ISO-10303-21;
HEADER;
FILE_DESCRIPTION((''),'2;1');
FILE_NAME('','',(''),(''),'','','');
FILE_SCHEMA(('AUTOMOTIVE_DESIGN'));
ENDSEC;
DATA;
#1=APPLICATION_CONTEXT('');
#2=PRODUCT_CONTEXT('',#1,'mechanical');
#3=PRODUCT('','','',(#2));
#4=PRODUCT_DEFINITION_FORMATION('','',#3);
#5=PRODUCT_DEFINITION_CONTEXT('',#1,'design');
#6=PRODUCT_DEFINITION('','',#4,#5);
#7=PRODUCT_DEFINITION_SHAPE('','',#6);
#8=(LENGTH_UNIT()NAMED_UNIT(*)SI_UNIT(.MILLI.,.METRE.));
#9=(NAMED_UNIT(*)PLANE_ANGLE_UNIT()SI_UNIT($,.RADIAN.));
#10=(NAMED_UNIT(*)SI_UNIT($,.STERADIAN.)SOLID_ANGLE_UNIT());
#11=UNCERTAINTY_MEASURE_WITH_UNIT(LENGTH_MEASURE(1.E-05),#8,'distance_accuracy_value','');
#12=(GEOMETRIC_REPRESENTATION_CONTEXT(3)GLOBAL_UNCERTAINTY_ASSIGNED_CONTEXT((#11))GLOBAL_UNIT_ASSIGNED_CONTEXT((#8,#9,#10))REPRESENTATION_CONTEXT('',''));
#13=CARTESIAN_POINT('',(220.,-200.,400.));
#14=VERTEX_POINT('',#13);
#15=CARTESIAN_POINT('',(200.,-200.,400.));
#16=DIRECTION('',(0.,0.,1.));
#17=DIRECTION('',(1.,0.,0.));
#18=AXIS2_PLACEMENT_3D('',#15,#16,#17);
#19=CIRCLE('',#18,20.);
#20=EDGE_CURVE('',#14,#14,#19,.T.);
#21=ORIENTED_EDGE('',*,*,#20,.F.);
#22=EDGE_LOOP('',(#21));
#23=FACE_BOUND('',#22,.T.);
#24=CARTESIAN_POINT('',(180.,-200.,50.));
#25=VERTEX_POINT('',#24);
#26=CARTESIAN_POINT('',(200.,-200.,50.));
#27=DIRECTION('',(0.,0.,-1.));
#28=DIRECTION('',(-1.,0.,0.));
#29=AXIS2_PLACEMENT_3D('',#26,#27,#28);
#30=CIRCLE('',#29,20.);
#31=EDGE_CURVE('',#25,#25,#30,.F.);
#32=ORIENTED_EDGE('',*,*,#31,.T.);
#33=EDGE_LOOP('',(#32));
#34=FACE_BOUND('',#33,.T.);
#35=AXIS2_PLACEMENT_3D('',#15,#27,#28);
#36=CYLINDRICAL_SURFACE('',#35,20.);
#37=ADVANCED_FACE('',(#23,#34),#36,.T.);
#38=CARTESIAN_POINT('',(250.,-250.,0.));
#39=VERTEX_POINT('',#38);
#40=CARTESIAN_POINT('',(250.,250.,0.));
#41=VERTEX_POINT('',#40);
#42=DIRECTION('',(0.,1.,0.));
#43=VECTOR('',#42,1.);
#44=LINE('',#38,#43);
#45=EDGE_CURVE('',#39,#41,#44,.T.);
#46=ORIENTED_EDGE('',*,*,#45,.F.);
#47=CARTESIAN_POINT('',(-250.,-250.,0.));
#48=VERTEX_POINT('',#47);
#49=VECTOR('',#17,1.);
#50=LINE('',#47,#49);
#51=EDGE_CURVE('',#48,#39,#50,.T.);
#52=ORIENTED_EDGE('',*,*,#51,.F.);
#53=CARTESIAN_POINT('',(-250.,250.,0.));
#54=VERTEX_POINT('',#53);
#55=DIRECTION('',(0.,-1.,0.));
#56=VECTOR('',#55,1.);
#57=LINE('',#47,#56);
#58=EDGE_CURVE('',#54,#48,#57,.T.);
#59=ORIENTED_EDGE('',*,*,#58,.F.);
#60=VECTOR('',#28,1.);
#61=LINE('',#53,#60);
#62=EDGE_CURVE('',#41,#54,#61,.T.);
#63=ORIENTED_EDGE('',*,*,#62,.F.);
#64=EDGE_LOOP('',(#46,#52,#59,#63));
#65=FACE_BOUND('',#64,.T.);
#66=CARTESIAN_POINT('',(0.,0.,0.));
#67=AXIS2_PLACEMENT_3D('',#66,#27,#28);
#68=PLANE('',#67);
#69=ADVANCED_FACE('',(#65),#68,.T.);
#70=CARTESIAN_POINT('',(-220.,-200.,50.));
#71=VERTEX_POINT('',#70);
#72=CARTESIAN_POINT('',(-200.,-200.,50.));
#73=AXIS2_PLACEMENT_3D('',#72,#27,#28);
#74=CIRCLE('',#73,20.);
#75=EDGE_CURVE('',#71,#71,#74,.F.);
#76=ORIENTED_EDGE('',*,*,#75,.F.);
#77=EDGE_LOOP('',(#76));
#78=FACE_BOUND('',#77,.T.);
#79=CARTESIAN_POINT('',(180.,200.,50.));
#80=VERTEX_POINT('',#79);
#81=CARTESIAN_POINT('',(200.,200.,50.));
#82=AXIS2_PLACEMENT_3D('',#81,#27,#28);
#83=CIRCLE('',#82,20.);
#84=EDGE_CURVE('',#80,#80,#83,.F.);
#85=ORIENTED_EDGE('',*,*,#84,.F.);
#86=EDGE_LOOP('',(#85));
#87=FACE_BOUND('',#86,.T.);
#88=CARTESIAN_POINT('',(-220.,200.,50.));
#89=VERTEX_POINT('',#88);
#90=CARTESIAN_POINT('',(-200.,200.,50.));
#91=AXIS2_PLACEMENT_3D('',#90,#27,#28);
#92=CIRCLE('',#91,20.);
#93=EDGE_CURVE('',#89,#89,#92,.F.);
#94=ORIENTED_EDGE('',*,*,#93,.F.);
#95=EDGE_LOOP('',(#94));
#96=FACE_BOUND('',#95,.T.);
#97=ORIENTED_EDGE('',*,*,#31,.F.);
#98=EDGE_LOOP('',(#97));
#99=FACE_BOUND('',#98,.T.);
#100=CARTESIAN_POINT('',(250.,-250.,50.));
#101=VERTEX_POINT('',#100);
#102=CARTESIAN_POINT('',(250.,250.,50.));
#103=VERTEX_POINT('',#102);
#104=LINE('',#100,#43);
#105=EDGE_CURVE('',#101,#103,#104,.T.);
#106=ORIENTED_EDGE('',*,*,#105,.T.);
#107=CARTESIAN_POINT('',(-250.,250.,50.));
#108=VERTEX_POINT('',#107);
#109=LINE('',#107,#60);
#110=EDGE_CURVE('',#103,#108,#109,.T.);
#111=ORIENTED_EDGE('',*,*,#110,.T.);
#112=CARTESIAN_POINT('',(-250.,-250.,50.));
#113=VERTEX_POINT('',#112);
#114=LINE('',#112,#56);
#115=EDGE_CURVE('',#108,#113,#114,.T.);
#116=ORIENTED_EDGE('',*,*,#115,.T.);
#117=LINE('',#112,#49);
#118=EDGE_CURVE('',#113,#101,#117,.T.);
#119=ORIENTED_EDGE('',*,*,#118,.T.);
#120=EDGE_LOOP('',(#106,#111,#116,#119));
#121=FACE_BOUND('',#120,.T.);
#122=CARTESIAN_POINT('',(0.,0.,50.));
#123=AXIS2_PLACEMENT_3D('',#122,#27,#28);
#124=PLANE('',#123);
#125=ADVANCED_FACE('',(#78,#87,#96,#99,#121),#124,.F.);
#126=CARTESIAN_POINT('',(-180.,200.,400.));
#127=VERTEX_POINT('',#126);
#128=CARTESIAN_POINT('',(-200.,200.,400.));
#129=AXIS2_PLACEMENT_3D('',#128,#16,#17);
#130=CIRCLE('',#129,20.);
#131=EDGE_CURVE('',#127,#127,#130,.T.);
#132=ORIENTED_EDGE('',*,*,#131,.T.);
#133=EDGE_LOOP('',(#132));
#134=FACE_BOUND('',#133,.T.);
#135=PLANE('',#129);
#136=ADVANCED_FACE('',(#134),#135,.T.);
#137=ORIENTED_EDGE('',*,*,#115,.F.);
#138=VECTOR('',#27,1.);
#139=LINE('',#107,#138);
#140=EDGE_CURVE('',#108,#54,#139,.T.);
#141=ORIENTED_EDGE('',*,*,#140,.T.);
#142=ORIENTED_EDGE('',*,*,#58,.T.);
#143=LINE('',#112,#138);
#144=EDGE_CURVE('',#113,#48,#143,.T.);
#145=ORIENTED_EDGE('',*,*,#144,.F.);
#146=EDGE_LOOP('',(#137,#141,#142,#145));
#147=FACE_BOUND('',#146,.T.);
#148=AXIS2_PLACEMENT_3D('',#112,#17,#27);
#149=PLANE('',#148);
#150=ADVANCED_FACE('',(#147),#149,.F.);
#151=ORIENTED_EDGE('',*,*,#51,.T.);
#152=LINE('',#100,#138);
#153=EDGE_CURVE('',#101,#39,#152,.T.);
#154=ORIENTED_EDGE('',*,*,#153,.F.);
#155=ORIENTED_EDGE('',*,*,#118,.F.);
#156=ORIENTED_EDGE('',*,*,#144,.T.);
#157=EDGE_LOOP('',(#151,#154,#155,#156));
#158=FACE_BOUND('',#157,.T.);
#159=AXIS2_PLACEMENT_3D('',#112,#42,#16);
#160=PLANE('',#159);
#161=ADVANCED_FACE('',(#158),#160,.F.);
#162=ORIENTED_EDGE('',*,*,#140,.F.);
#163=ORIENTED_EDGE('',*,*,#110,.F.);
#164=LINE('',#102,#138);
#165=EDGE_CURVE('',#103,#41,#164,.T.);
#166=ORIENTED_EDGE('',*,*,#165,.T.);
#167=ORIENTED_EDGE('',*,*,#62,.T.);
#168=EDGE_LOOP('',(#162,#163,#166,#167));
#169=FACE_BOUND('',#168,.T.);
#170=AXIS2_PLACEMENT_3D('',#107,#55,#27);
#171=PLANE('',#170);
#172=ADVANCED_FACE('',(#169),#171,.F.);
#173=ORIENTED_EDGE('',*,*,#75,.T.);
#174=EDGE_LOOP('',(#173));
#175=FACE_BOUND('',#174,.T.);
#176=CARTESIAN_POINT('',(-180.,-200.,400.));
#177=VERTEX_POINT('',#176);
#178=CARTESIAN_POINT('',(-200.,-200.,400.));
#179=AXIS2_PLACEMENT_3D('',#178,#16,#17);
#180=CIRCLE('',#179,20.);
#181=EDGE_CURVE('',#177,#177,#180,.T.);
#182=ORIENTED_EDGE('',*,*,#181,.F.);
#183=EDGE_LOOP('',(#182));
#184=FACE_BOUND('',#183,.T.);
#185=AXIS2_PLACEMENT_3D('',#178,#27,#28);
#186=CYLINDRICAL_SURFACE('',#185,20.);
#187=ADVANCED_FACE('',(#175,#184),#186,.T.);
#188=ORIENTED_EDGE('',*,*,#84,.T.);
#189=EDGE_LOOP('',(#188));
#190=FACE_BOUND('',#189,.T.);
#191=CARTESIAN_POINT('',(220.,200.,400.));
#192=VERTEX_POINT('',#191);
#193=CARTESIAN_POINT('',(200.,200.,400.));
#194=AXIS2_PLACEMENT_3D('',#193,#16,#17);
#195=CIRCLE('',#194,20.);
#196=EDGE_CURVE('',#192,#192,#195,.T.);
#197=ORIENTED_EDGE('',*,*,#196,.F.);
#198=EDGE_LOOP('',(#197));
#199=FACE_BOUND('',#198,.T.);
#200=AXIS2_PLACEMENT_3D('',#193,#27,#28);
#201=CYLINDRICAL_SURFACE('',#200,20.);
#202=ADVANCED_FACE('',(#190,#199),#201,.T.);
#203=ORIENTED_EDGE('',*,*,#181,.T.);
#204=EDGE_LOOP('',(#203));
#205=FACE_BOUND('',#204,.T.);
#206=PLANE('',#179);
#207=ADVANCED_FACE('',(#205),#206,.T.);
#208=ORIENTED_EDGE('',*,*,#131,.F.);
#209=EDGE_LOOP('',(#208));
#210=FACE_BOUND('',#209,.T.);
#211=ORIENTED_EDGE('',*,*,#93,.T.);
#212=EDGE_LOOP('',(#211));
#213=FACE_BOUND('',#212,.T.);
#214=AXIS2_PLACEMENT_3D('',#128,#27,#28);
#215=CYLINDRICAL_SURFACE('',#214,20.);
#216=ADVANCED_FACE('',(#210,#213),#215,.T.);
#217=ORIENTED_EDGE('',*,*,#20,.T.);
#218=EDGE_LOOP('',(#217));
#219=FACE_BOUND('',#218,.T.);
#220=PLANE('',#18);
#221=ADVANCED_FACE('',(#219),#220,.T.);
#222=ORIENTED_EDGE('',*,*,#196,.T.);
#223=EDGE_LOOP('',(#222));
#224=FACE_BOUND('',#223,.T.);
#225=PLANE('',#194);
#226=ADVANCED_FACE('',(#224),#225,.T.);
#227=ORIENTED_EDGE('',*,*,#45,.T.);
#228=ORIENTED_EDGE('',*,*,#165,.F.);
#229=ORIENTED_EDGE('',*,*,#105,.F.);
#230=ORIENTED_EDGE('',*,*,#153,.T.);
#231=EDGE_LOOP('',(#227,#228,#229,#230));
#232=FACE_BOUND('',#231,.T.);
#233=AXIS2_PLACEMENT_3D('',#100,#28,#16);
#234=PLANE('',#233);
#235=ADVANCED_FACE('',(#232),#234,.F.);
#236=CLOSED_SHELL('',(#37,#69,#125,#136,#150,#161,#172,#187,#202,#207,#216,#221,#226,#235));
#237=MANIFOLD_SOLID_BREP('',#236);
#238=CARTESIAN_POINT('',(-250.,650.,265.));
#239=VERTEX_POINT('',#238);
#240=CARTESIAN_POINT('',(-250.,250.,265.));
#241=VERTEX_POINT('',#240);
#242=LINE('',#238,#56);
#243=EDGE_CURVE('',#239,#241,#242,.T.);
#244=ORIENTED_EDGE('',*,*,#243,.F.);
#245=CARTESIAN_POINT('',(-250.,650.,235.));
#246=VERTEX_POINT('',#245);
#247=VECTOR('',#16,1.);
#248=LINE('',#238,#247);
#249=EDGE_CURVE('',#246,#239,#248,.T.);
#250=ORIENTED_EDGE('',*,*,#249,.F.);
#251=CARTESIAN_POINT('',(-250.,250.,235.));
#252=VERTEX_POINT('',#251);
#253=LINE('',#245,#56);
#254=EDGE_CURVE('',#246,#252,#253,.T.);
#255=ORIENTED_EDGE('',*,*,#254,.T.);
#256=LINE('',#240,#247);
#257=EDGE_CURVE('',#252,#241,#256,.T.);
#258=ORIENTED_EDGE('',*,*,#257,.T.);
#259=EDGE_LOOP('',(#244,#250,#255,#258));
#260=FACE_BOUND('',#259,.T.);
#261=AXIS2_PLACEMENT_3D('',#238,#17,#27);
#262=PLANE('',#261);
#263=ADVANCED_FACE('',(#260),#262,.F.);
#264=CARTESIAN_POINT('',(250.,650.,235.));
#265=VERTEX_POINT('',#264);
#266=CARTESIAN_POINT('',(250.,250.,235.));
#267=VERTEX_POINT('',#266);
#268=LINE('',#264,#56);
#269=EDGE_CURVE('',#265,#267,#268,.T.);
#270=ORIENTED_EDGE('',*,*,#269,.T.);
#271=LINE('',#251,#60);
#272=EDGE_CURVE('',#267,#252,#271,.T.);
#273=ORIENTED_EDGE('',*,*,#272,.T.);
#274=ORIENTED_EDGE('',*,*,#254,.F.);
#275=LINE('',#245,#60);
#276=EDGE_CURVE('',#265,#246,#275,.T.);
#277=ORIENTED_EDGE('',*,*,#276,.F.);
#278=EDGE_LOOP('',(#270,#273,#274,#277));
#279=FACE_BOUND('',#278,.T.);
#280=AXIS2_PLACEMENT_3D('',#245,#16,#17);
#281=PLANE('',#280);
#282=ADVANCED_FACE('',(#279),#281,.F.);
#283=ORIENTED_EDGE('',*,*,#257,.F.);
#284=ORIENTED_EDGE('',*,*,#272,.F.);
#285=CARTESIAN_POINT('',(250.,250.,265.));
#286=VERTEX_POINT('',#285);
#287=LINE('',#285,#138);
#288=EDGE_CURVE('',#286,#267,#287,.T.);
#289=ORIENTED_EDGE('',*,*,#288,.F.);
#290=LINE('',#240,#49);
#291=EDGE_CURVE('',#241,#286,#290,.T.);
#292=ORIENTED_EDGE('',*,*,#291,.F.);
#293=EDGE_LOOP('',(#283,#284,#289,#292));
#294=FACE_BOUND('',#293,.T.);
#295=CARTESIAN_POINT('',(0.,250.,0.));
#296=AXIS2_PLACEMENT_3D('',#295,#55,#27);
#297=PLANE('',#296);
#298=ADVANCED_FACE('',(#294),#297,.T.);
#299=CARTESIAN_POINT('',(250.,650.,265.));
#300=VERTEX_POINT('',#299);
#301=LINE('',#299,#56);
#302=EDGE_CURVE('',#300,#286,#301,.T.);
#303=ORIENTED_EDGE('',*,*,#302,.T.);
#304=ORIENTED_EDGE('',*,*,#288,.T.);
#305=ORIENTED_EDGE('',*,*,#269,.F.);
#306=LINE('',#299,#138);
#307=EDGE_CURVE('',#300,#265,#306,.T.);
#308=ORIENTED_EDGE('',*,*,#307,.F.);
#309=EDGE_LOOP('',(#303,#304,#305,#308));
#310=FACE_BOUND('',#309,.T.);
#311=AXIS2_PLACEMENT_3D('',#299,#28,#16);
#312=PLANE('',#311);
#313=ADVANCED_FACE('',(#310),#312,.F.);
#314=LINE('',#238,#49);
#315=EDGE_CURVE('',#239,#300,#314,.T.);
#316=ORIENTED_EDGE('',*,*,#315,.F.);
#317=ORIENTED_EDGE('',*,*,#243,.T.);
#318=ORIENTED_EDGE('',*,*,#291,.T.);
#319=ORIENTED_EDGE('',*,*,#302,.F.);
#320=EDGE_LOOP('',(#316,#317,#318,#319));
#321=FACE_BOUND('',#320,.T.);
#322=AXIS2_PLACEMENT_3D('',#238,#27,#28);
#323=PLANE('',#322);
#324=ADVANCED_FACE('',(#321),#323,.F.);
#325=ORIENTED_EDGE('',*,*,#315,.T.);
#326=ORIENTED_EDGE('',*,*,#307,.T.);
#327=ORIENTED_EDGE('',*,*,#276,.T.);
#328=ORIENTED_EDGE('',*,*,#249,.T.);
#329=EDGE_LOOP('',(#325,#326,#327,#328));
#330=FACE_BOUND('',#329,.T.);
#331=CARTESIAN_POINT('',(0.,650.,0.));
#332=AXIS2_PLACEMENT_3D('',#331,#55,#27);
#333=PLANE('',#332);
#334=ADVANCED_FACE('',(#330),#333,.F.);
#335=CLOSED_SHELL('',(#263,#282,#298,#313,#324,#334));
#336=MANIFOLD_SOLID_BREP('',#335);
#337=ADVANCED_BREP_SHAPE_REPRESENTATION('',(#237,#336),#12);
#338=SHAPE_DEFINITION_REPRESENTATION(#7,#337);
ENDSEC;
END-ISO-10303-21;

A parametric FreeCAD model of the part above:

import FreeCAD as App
import Part
import Sketcher

doc = App.newDocument("Part")
body = doc.addObject("PartDesign::Body", "Body")

# Sketch on XY plane
sketch1 = body.newObject("Sketcher::SketchObject", "Sketch")
sketch1.AttachmentSupport = (doc.getObject("XY_Plane"), [""])
sketch1.MapMode = "FlatFace"
sketch1.addGeometry(Part.LineSegment(App.Vector(-250, 250, 0), App.Vector(-250, -250, 0)), False)
sketch1.addGeometry(Part.LineSegment(App.Vector(-250, -250, 0), App.Vector(250, -250, 0)), False)
sketch1.addGeometry(Part.LineSegment(App.Vector(250, -250, 0), App.Vector(250, 250, 0)), False)
sketch1.addGeometry(Part.LineSegment(App.Vector(250, 250, 0), App.Vector(-250, 250, 0)), False)
sketch1.addConstraint(Sketcher.Constraint("Coincident", 0, 2, 1, 1))
sketch1.addConstraint(Sketcher.Constraint("Coincident", 1, 2, 2, 1))
sketch1.addConstraint(Sketcher.Constraint("Coincident", 2, 2, 3, 1))
sketch1.addConstraint(Sketcher.Constraint("Coincident", 3, 2, 0, 1))
sketch1.addConstraint(Sketcher.Constraint("Vertical", 0))
sketch1.addConstraint(Sketcher.Constraint("Horizontal", 1))
sketch1.addConstraint(Sketcher.Constraint("Vertical", 2))
sketch1.addConstraint(Sketcher.Constraint("Horizontal", 3))
sketch1.addConstraint(Sketcher.Constraint("Symmetric", 0, 2, 2, 2, -1, 1))
sketch1.addConstraint(Sketcher.Constraint("Equal", 3, 0))
sketch1.addConstraint(Sketcher.Constraint("DistanceX", 1, 1, 1, 2, 500.0))
pad1 = body.newObject("PartDesign::Pad", "Pad")
pad1.Profile = sketch1
pad1.Length = 50

# Sketch on XY plane
sketch2 = body.newObject("Sketcher::SketchObject", "Sketch001")
sketch2.AttachmentSupport = (doc.getObject("XY_Plane"), [""])
sketch2.MapMode = "FlatFace"
sketch2.addGeometry(Part.Circle(App.Vector(-200, -200, 0), App.Vector(0, 0, 1), 20), False)
sketch2.addConstraint(Sketcher.Constraint("Diameter", 0, 40.0))
sketch2.addConstraint(Sketcher.Constraint("DistanceX", 0, 3, -1, 1, 200.0))
sketch2.addConstraint(Sketcher.Constraint("DistanceY", 0, 3, -1, 1, 200.0))
pad2 = body.newObject("PartDesign::Pad", "Pad001")
pad2.Profile = sketch2
pad2.Length = 400

# Sketch on XY plane
sketch3 = body.newObject("Sketcher::SketchObject", "Sketch002")
sketch3.AttachmentSupport = (doc.getObject("XY_Plane"), [""])
sketch3.MapMode = "FlatFace"
sketch3.addGeometry(Part.Circle(App.Vector(200, -200, 0), App.Vector(0, 0, 1), 20), False)
sketch3.addConstraint(Sketcher.Constraint("Diameter", 0, 40.0))
sketch3.addConstraint(Sketcher.Constraint("DistanceX", -1, 1, 0, 3, 200.0))
sketch3.addConstraint(Sketcher.Constraint("DistanceY", 0, 3, -1, 1, 200.0))
pad3 = body.newObject("PartDesign::Pad", "Pad002")
pad3.Profile = sketch3
pad3.Length = 400

# Sketch on XY plane
sketch4 = body.newObject("Sketcher::SketchObject", "Sketch003")
sketch4.AttachmentSupport = (doc.getObject("XY_Plane"), [""])
sketch4.MapMode = "FlatFace"
sketch4.addGeometry(Part.Circle(App.Vector(-200, 200, 0), App.Vector(0, 0, 1), 20), False)
sketch4.addConstraint(Sketcher.Constraint("Diameter", 0, 40.0))
sketch4.addConstraint(Sketcher.Constraint("DistanceX", 0, 3, -1, 1, 200.0))
sketch4.addConstraint(Sketcher.Constraint("DistanceY", -1, 1, 0, 3, 200.0))
pad4 = body.newObject("PartDesign::Pad", "Pad003")
pad4.Profile = sketch4
pad4.Length = 400

# Sketch on XY plane
sketch5 = body.newObject("Sketcher::SketchObject", "Sketch004")
sketch5.AttachmentSupport = (doc.getObject("XY_Plane"), [""])
sketch5.MapMode = "FlatFace"
sketch5.addGeometry(Part.Circle(App.Vector(200, 200, 0), App.Vector(0, 0, 1), 20), False)
sketch5.addConstraint(Sketcher.Constraint("Diameter", 0, 40.0))
sketch5.addConstraint(Sketcher.Constraint("DistanceX", -1, 1, 0, 3, 200.0))
sketch5.addConstraint(Sketcher.Constraint("DistanceY", -1, 1, 0, 3, 200.0))
pad5 = body.newObject("PartDesign::Pad", "Pad004")
pad5.Profile = sketch5
pad5.Length = 400
body2 = doc.addObject("PartDesign::Body", "Body001")

# Sketch on XZ plane
sketch6 = body2.newObject("Sketcher::SketchObject", "Sketch005")
sketch6.AttachmentSupport = (doc.getObject("XZ_Plane001"), [""])
sketch6.MapMode = "FlatFace"
sketch6.AttachmentOffset = App.Placement(App.Vector(0, 0, -250), App.Rotation())
sketch6.addGeometry(Part.LineSegment(App.Vector(-250, 235, 0), App.Vector(-250, 265, 0)), False)
sketch6.addGeometry(Part.LineSegment(App.Vector(-250, 265, 0), App.Vector(250, 265, 0)), False)
sketch6.addGeometry(Part.LineSegment(App.Vector(250, 265, 0), App.Vector(250, 235, 0)), False)
sketch6.addGeometry(Part.LineSegment(App.Vector(250, 235, 0), App.Vector(-250, 235, 0)), False)
sketch6.addConstraint(Sketcher.Constraint("Coincident", 0, 2, 1, 1))
sketch6.addConstraint(Sketcher.Constraint("Coincident", 1, 2, 2, 1))
sketch6.addConstraint(Sketcher.Constraint("Coincident", 2, 2, 3, 1))
sketch6.addConstraint(Sketcher.Constraint("Coincident", 3, 2, 0, 1))
sketch6.addConstraint(Sketcher.Constraint("Vertical", 0))
sketch6.addConstraint(Sketcher.Constraint("Horizontal", 1))
sketch6.addConstraint(Sketcher.Constraint("Vertical", 2))
sketch6.addConstraint(Sketcher.Constraint("Horizontal", 3))
sketch6.addConstraint(Sketcher.Constraint("DistanceX", 1, 1, 1, 2, 500.0))
sketch6.addConstraint(Sketcher.Constraint("DistanceY", 0, 1, 0, 2, 30.0))
sketch6.addConstraint(Sketcher.Constraint("DistanceX", 0, 2, -1, 1, 250.0))
sketch6.addConstraint(Sketcher.Constraint("DistanceY", -1, 1, 0, 2, 265.0))
pad6 = body2.newObject("PartDesign::Pad", "Pad005")
pad6.Profile = sketch6
pad6.Length = 400
pad6.Reversed = True

doc.recompute()
